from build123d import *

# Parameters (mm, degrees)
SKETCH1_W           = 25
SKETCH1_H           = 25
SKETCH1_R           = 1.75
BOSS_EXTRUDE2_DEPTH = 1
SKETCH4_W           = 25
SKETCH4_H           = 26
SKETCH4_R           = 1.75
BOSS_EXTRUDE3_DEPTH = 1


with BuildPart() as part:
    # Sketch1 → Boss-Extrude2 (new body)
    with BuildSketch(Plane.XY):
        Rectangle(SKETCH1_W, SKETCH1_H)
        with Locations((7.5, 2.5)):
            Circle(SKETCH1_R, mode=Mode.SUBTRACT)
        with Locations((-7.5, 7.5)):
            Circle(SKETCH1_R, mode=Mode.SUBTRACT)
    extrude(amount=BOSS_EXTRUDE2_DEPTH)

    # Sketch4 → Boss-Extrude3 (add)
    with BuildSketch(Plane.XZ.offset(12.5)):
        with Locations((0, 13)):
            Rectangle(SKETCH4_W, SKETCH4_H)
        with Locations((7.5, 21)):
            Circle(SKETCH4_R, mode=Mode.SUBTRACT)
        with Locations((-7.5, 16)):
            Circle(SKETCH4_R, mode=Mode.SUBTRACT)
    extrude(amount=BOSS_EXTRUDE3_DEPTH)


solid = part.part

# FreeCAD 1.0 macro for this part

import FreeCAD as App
import Part
import Sketcher

V = App.Vector
Q = App.Units.Quantity

doc = App.newDocument("Part")
body = doc.addObject("PartDesign::Body", "Body")

# Sketch on XY plane
sketch1 = body.newObject("Sketcher::SketchObject", "Sketch")
sketch1.AttachmentSupport = (doc.getObject("XY_Plane"), [""])
sketch1.MapMode = "FlatFace"
sketch1.addGeometry([
    Part.LineSegment(V(-12.5, 12.5, 0), V(-12.5, -12.5, 0)),  # 0
    Part.LineSegment(V(-12.5, -12.5, 0), V(12.5, -12.5, 0)),  # 1
    Part.LineSegment(V(12.5, -12.5, 0), V(12.5, 12.5, 0)),  # 2
    Part.LineSegment(V(12.5, 12.5, 0), V(-12.5, 12.5, 0)),  # 3
    Part.Circle(V(7.5, 2.5, 0), V(0, 0, 1), 1.8),  # 4
    Part.Circle(V(-7.5, 7.5, 0), V(0, 0, 1), 1.8),  # 5
], False)
sketch1.addConstraint([
    Sketcher.Constraint("Coincident", 0, 2, 1, 1),
    Sketcher.Constraint("Coincident", 1, 2, 2, 1),
    Sketcher.Constraint("Coincident", 2, 2, 3, 1),
    Sketcher.Constraint("Coincident", 3, 2, 0, 1),
    Sketcher.Constraint("Vertical", 0),
    Sketcher.Constraint("Horizontal", 1),
    Sketcher.Constraint("Vertical", 2),
    Sketcher.Constraint("Horizontal", 3),
    Sketcher.Constraint("Equal", 4, 5),
    Sketcher.Constraint("Symmetric", 0, 2, 2, 2, -1, 1),
    Sketcher.Constraint("Equal", 3, 0),
    Sketcher.Constraint("Diameter", 4, Q("3.5 mm")),
    Sketcher.Constraint("DistanceX", 1, 1, 1, 2, Q("25 mm")),
    Sketcher.Constraint("DistanceX", 5, 3, 4, 3, Q("15 mm")),
    Sketcher.Constraint("DistanceY", 4, 3, 5, 3, Q("5 mm")),
    Sketcher.Constraint("DistanceX", 0, 2, 5, 3, Q("5 mm")),
    Sketcher.Constraint("DistanceY", 0, 2, 5, 3, Q("20 mm")),
])
pad1 = body.newObject("PartDesign::Pad", "Pad")
pad1.Profile = sketch1
pad1.Length = 1

# Sketch on XZ plane
sketch2 = body.newObject("Sketcher::SketchObject", "Sketch001")
sketch2.AttachmentSupport = (doc.getObject("XZ_Plane"), [""])
sketch2.MapMode = "FlatFace"
sketch2.AttachmentOffset = App.Placement(V(0, 0, 12.5), App.Rotation())
sketch2.addGeometry([
    Part.LineSegment(V(-12.5, 26, 0), V(-12.5, 0, 0)),  # 0
    Part.LineSegment(V(-12.5, 0, 0), V(12.5, 0, 0)),  # 1
    Part.LineSegment(V(12.5, 0, 0), V(12.5, 26, 0)),  # 2
    Part.LineSegment(V(12.5, 26, 0), V(-12.5, 26, 0)),  # 3
    Part.Circle(V(-7.5, 16, 0), V(0, 0, 1), 1.8),  # 4
    Part.Circle(V(7.5, 21, 0), V(0, 0, 1), 1.8),  # 5
], False)
sketch2.addConstraint([
    Sketcher.Constraint("Coincident", 0, 2, 1, 1),
    Sketcher.Constraint("Coincident", 1, 2, 2, 1),
    Sketcher.Constraint("Coincident", 2, 2, 3, 1),
    Sketcher.Constraint("Coincident", 3, 2, 0, 1),
    Sketcher.Constraint("Vertical", 0),
    Sketcher.Constraint("Horizontal", 1),
    Sketcher.Constraint("Vertical", 2),
    Sketcher.Constraint("Horizontal", 3),
    Sketcher.Constraint("Equal", 4, 5),
    Sketcher.Constraint("Symmetric", 0, 2, 1, 2, -1, 1),
    Sketcher.Constraint("Diameter", 4, Q("3.5 mm")),
    Sketcher.Constraint("DistanceX", 1, 1, 1, 2, Q("25 mm")),
    Sketcher.Constraint("DistanceY", 0, 2, 0, 1, Q("26 mm")),
    Sketcher.Constraint("DistanceY", -1, 1, 4, 3, Q("16 mm")),
    Sketcher.Constraint("DistanceY", -1, 1, 5, 3, Q("21 mm")),
    Sketcher.Constraint("DistanceX", 4, 3, 5, 3, Q("15 mm")),
    Sketcher.Constraint("DistanceX", 0, 2, 4, 3, Q("5 mm")),
])
pad2 = body.newObject("PartDesign::Pad", "Pad001")
pad2.Profile = sketch2
pad2.Length = 1

doc.recompute()
